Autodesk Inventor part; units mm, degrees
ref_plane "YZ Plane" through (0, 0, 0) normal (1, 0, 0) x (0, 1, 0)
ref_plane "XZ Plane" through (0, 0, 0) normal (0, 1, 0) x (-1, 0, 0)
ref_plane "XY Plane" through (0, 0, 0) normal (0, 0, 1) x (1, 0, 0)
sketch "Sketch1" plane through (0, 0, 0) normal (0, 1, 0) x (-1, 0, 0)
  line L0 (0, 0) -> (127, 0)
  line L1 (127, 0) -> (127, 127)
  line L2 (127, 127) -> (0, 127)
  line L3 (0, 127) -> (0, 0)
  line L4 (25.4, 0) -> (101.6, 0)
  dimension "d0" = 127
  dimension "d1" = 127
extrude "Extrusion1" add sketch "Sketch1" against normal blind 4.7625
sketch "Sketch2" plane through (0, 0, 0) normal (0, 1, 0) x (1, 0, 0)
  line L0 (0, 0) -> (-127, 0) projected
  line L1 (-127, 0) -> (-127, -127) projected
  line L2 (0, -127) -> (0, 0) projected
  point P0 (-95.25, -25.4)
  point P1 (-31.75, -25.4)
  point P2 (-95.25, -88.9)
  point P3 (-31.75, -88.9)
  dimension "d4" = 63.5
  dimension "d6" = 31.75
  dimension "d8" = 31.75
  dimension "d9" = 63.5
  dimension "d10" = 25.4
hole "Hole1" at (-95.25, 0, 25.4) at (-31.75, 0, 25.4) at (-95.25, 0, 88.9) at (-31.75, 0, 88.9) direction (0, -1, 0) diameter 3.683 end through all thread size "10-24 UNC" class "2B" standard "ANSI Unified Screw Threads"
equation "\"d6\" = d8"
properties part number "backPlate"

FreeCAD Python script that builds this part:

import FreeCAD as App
import Part
import Sketcher

V = App.Vector
Q = App.Units.Quantity


def add_polygon(sketch, points):
    """Adds a closed chain of lines whose ends are joined by coincident constraints."""
    first, n = sketch.GeometryCount, len(points)
    for a, b in zip(points, points[1:] + points[:1]):
        sketch.addGeometry(Part.LineSegment(App.Vector(*a, 0), App.Vector(*b, 0)), False)
    for i in range(n):
        sketch.addConstraint(Sketcher.Constraint("Coincident", first + i, 2, first + (i + 1) % n, 1))

doc = App.newDocument("Part")
body = doc.addObject("PartDesign::Body", "Body")

# Sketch on XZ plane
sketch1 = body.newObject("Sketcher::SketchObject", "Sketch")
sketch1.AttachmentSupport = (doc.getObject("XZ_Plane"), [""])
sketch1.MapMode = "FlatFace"
add_polygon(sketch1, [(0, 127), (0, 0), (-127, 0), (-127, 127)])  # lines 0-3
sketch1.addConstraint([
    Sketcher.Constraint("Vertical", 0),
    Sketcher.Constraint("Horizontal", 1),
    Sketcher.Constraint("Vertical", 2),
    Sketcher.Constraint("Horizontal", 3),
    Sketcher.Constraint("Coincident", 0, 2, -1, 1),
    Sketcher.Constraint("Equal", 3, 0),
    Sketcher.Constraint("DistanceX", 1, 2, 1, 1, Q("5 in")),
])
pad1 = body.newObject("PartDesign::Pad", "Pad")
pad1.Profile = sketch1
pad1.Length = Q("0.1875 in")

# Sketch on XZ plane
sketch2 = body.newObject("Sketcher::SketchObject", "Sketch001")
sketch2.AttachmentSupport = (doc.getObject("XZ_Plane"), [""])
sketch2.MapMode = "FlatFace"
sketch2.addGeometry([
    Part.Circle(V(-95.2, 25.4, 0), V(0, 0, 1), 1.8),
    Part.Circle(V(-31.8, 25.4, 0), V(0, 0, 1), 1.8),
    Part.Circle(V(-95.2, 88.9, 0), V(0, 0, 1), 1.8),
    Part.Circle(V(-31.8, 88.9, 0), V(0, 0, 1), 1.8),
], False)
sketch2.addConstraint([
    Sketcher.Constraint("Equal", 0, 1),
    Sketcher.Constraint("Equal", 1, 2),
    Sketcher.Constraint("Equal", 2, 3),
    Sketcher.Constraint("Horizontal", 0, 3, 1, 3),
    Sketcher.Constraint("Horizontal", 2, 3, 3, 3),
    Sketcher.Constraint("Vertical", 0, 3, 2, 3),
    Sketcher.Constraint("Vertical", 1, 3, 3, 3),
    Sketcher.Constraint("Diameter", 0, Q("0.145 in")),
    Sketcher.Constraint("DistanceY", -1, 1, 0, 3, Q("1 in")),
    Sketcher.Constraint("DistanceY", -1, 1, 2, 3, Q("3.5 in")),
    Sketcher.Constraint("DistanceX", 0, 3, 1, 3, Q("2.5 in")),
    Sketcher.Constraint("DistanceX", 0, 3, -1, 1, Q("3.75 in")),
])
doc.recompute()
hole = body.newObject("PartDesign::Hole", "Hole")
hole.Profile = sketch2
hole.ThreadType = "None"
hole.Diameter = Q("0.145 in")
hole.DepthType = "ThroughAll"
hole.Reversed = True

doc.recompute()
